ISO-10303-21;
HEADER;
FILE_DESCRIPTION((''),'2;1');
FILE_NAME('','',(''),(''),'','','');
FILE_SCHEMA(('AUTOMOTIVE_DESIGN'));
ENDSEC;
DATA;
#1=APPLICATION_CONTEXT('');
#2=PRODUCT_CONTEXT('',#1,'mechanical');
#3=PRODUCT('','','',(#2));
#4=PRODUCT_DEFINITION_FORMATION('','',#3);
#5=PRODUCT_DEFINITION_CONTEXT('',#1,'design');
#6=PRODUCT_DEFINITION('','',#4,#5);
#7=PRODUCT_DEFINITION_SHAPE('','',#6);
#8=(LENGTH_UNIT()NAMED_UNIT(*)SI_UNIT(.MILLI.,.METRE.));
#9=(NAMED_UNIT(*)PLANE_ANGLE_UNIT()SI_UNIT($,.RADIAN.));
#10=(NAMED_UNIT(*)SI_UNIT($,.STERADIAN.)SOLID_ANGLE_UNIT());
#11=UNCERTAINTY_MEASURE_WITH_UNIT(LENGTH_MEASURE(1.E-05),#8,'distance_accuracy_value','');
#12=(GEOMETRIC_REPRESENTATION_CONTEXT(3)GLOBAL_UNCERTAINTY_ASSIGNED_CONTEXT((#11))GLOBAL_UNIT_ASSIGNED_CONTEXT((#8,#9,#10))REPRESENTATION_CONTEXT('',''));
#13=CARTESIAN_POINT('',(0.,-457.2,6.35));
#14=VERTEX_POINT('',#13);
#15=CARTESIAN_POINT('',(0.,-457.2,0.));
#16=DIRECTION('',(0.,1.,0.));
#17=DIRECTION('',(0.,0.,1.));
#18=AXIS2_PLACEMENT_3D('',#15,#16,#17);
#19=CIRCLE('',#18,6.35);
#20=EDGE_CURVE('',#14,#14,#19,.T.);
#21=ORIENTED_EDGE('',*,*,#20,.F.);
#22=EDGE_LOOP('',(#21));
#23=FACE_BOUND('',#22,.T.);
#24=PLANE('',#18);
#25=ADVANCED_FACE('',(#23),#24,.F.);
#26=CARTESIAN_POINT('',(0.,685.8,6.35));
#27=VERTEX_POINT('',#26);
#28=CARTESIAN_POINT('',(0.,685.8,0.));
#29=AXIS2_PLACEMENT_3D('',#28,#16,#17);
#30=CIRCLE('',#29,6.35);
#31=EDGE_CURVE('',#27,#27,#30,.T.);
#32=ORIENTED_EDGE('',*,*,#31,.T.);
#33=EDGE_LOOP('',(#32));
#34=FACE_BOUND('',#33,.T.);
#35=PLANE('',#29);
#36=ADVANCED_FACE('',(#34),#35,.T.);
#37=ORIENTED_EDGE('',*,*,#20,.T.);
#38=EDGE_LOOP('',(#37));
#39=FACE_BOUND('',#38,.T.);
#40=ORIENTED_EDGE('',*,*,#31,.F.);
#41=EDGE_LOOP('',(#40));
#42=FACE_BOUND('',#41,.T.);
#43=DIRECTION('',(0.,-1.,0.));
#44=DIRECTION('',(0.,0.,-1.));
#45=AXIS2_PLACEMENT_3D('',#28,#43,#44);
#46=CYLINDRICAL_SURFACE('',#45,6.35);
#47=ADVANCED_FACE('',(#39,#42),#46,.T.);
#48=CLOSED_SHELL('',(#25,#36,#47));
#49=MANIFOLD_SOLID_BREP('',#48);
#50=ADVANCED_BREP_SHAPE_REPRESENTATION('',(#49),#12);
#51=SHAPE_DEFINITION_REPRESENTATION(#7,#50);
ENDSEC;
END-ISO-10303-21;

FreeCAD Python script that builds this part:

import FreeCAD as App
import Part
import Sketcher
from FreeCAD import Vector
Q = App.Units.Quantity

doc = App.newDocument("Part")
body = doc.addObject("PartDesign::Body", "Body")

sketch1 = doc.addObject("Sketcher::SketchObject", "Sketch")
body.addObject(sketch1)
sketch1.AttachmentSupport = (doc.XZ_Plane, [""])
sketch1.MapMode = "FlatFace"
sketch1.addGeometry(Part.Circle(Vector(0, 0, 0), Vector(0, 0, 1), 6), False)
sketch1.addConstraint([
    Sketcher.Constraint("Coincident", 0, 3, -1, 1),
    Sketcher.Constraint("Diameter", 0, Q("0.5 in")),
])
pad1 = doc.addObject("PartDesign::Pad", "Pad")
body.addObject(pad1)
pad1.Profile = sketch1
pad1.Type = "TwoLengths"
pad1.Length = Q("27 in")
pad1.Length2 = Q("18 in")
pad1.Reversed = True

doc.recompute()
